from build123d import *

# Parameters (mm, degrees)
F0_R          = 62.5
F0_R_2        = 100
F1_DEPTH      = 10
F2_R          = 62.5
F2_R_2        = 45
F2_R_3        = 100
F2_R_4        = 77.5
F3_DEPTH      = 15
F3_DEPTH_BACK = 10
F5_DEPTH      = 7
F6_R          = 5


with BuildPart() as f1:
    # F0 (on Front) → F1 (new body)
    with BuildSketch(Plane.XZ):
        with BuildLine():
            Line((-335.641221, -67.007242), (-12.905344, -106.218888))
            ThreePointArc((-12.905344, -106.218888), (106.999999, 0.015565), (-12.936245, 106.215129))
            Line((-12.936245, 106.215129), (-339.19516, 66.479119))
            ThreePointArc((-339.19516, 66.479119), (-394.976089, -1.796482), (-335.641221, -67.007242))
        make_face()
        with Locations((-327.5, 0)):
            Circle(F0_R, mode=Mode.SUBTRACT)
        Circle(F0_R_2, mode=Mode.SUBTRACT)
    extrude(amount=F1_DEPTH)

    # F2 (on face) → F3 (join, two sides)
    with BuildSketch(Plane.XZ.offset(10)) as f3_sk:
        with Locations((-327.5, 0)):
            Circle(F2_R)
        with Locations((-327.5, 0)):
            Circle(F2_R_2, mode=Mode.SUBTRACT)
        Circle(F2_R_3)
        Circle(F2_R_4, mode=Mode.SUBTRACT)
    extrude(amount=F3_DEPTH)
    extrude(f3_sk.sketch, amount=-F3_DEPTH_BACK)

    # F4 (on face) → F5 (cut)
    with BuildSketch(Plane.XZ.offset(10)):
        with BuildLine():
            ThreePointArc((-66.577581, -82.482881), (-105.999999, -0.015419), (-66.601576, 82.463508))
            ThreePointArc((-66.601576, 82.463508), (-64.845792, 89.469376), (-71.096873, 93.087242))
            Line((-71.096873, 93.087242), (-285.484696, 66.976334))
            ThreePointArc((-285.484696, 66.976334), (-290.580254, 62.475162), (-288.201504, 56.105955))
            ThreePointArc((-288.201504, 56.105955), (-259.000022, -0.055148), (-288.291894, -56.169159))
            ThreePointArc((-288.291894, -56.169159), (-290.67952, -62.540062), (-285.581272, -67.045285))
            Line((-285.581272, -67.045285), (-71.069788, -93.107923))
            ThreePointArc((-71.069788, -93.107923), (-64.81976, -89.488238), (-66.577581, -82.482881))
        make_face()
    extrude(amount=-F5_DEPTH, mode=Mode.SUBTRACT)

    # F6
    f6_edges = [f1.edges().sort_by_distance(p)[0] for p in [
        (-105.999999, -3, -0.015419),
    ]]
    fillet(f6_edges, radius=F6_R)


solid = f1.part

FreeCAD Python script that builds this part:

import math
import FreeCAD as App
import Part
import Sketcher

V = App.Vector
Q = App.Units.Quantity


def edges_at(feature, points):
    """Names of the edges that pass closest to the given points."""
    edges = feature.Shape.Edges
    near = lambda p: min(range(len(edges)), key=lambda i: edges[i].distToShape(Part.Vertex(*p))[0])
    return sorted({f"Edge{near(p) + 1}" for p in points})

doc = App.newDocument("Part")
body = doc.addObject("PartDesign::Body", "Body")

# Sketch on XZ plane
sketch1 = body.newObject("Sketcher::SketchObject", "Sketch")
sketch1.AttachmentSupport = (doc.getObject("XZ_Plane"), [""])
sketch1.MapMode = "FlatFace"
sketch1.addGeometry([
    Part.LineSegment(V(-336, -67, 0), V(-13, -106, 0)),  # 0
    Part.ArcOfCircle(Part.Circle(V(0, 0, 0), V(0, 0, 1), 107), math.radians(-97), math.radians(97)),  # 1
    Part.LineSegment(V(-13, 106, 0), V(-339, 66, 0)),  # 2
    Part.ArcOfCircle(Part.Circle(V(-327, 0, 0), V(0, 0, 1), 68), math.radians(100), math.radians(263)),  # 3
    Part.Circle(V(-328, 0, 0), V(0, 0, 1), 62),  # 4
    Part.Circle(V(0, 0, 0), V(0, 0, 1), 100),  # 5
], False)
sketch1.addConstraint([
    Sketcher.Constraint("Tangent", 0, 2, 1, 1),
    Sketcher.Constraint("Tangent", 1, 2, 2, 1),
    Sketcher.Constraint("Coincident", 2, 2, 3, 1),
    Sketcher.Constraint("Tangent", 3, 2, 0, 1),
    Sketcher.Constraint("Coincident", 1, 3, -1, 1),
    Sketcher.Constraint("Coincident", 5, 3, -1, 1),
    Sketcher.Constraint("Coincident", 4, 3, 3, 3),
    Sketcher.Constraint("PointOnObject", 3, 3, -1),
    Sketcher.Constraint("Diameter", 4, Q("125 mm")),
    Sketcher.Constraint("Diameter", 5, Q("200 mm")),
    Sketcher.Constraint("Radius", 1, Q("107 mm")),
    Sketcher.Constraint("Radius", 3, Q("67.5 mm")),
    Sketcher.Constraint("DistanceX", 3, 3, -1, 1, Q("327.499999 mm")),
    Sketcher.Constraint("Distance", 2, Q("328.669789 mm")),
])
pad1 = body.newObject("PartDesign::Pad", "Pad")
pad1.Profile = sketch1
pad1.Length = 10

# Sketch on XZ plane
sketch2 = body.newObject("Sketcher::SketchObject", "Sketch001")
sketch2.AttachmentSupport = (doc.getObject("XZ_Plane"), [""])
sketch2.MapMode = "FlatFace"
sketch2.AttachmentOffset = App.Placement(V(0, 0, 10), App.Rotation())
sketch2.addGeometry([
    Part.Circle(V(-328, 0, 0), V(0, 0, 1), 62),
    Part.Circle(V(-328, 0, 0), V(0, 0, 1), 45),
    Part.Circle(V(0, 0, 0), V(0, 0, 1), 100),
    Part.Circle(V(0, 0, 0), V(0, 0, 1), 78),
], False)
sketch2.addConstraint([
    Sketcher.Constraint("Coincident", 2, 3, -1, 1),
    Sketcher.Constraint("Coincident", 3, 3, -1, 1),
    Sketcher.Constraint("Coincident", 1, 3, 0, 3),
    Sketcher.Constraint("PointOnObject", 0, 3, -1),
    Sketcher.Constraint("Diameter", 0, Q("125 mm")),
    Sketcher.Constraint("Diameter", 1, Q("90 mm")),
    Sketcher.Constraint("Diameter", 2, Q("200 mm")),
    Sketcher.Constraint("Diameter", 3, Q("155 mm")),
    Sketcher.Constraint("DistanceX", 0, 3, -1, 1, Q("327.5 mm")),
])
pad2 = body.newObject("PartDesign::Pad", "Pad001")
pad2.Profile = sketch2
pad2.Type = "TwoLengths"
pad2.Length = 15
pad2.Length2 = 10

# Sketch on XZ plane
sketch3 = body.newObject("Sketcher::SketchObject", "Sketch002")
sketch3.AttachmentSupport = (doc.getObject("XZ_Plane"), [""])
sketch3.MapMode = "FlatFace"
sketch3.AttachmentOffset = App.Placement(V(0, 0, 10), App.Rotation())
sketch3.addGeometry([
    Part.ArcOfCircle(Part.Circle(V(0, 0, 0), V(0, 0, 1), 106), math.radians(129), math.radians(231)),  # 0
    Part.ArcOfCircle(Part.Circle(V(-70, 87, 0), V(0, 0, 1), 6), math.radians(-51), math.radians(97)),  # 1
    Part.LineSegment(V(-71, 93, 0), V(-285, 67, 0)),  # 2
    Part.ArcOfCircle(Part.Circle(V(-285, 61, 0), V(0, 0, 1), 6), math.radians(97), math.radians(235)),  # 3
    Part.ArcOfCircle(Part.Circle(V(-327, 0, 0), V(0, 0, 1), 68), math.radians(-55), math.radians(55)),  # 4
    Part.ArcOfCircle(Part.Circle(V(-285, -61, 0), V(0, 0, 1), 6), math.radians(125), math.radians(263)),  # 5
    Part.LineSegment(V(-286, -67, 0), V(-71, -93, 0)),  # 6
    Part.ArcOfCircle(Part.Circle(V(-70, -87, 0), V(0, 0, 1), 6), math.radians(-97), math.radians(51)),  # 7
], False)
sketch3.addConstraint([
    Sketcher.Constraint("Tangent", 0, 1, 1, 1),
    Sketcher.Constraint("Tangent", 1, 2, 2, 1),
    Sketcher.Constraint("Tangent", 2, 2, 3, 1),
    Sketcher.Constraint("Tangent", 3, 2, 4, 2),
    Sketcher.Constraint("Tangent", 4, 1, 5, 1),
    Sketcher.Constraint("Tangent", 5, 2, 6, 1),
    Sketcher.Constraint("Tangent", 6, 2, 7, 1),
    Sketcher.Constraint("Tangent", 7, 2, 0, 2),
    Sketcher.Constraint("Coincident", 0, 3, -1, 1),
    Sketcher.Constraint("Equal", 1, 3),
    Sketcher.Constraint("Equal", 3, 5),
    Sketcher.Constraint("Equal", 5, 7),
    Sketcher.Constraint("PointOnObject", 4, 3, -1),
    Sketcher.Constraint("Radius", 0, Q("106 mm")),
    Sketcher.Constraint("Radius", 1, Q("6 mm")),
    Sketcher.Constraint("Radius", 4, Q("68.5 mm")),
    Sketcher.Constraint("DistanceX", 4, 3, -1, 1, Q("327.499999 mm")),
    Sketcher.Constraint("DistanceX", 3, 3, -1, 1, Q("284.7593 mm")),
    Sketcher.Constraint("DistanceY", 3, 2, 1, 3, Q("31.025299 mm")),
    Sketcher.Constraint("DistanceX", 4, 1, 2, 2, Q("2.807198 mm")),
    Sketcher.Constraint("Distance", 6, Q("216.088958 mm")),
])
pocket1 = body.newObject("PartDesign::Pocket", "Pocket")
pocket1.Profile = sketch3
pocket1.Length = 7
doc.recompute()

fillet = body.newObject("PartDesign::Fillet", "Fillet")
fillet.Base = (pocket1, edges_at(pocket1, [(-106, -3, -0.015)]))
fillet.Radius = 5

doc.recompute()
